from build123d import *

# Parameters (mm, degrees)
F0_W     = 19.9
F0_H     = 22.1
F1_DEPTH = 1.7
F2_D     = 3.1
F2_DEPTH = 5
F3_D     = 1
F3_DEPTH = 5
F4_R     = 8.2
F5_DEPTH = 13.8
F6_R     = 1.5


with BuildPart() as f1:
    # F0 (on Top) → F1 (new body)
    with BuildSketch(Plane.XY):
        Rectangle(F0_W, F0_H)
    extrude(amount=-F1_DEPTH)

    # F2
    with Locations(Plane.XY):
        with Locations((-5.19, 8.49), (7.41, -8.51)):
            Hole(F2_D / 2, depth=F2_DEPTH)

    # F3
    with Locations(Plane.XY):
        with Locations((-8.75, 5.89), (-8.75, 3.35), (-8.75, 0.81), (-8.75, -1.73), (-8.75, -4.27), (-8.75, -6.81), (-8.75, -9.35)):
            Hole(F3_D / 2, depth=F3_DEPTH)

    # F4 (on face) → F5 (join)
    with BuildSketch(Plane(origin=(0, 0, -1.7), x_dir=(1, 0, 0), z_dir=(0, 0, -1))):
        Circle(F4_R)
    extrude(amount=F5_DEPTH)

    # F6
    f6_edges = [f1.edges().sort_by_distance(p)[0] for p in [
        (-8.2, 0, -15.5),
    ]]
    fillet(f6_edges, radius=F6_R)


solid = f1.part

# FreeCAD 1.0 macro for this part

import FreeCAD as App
import Part
import Sketcher
Q = App.Units.Quantity


def edges_at(feature, points):
    """Names of the edges that pass closest to the given points."""
    edges = feature.Shape.Edges
    near = lambda p: min(range(len(edges)), key=lambda i: edges[i].distToShape(Part.Vertex(*p))[0])
    return sorted({f"Edge{near(p) + 1}" for p in points})

doc = App.newDocument("Part")
params = doc.addObject("Spreadsheet::Sheet", "Params")
for row, (alias, value) in enumerate([
    ("sketch1_width", "19.9 mm"),
    ("sketch1_height", "22.1 mm"),
    ("pad1_length", "1.7 mm"),
    ("sketch2_diameter", "3.1 mm"),
    ("hole_diameter", "3.1 mm"),
    ("hole_depth", "5 mm"),
    ("sketch3_diameter", "1 mm"),
    ("hole2_diameter", "1 mm"),
    ("hole2_depth", "5 mm"),
    ("sketch4_diameter", "16.4 mm"),
    ("pad2_length", "13.8 mm"),
    ("fillet_radius", "1.5 mm"),
], start=1):
    params.set(f"A{row}", alias)
    params.set(f"B{row}", "=" + value)
    params.setAlias(f"B{row}", alias)

body = doc.addObject("PartDesign::Body", "Body")

sketch1 = body.newObject("Sketcher::SketchObject", "Sketch")
sketch1.AttachmentSupport = (doc.getObject("XY_Plane"), [""])
sketch1.MapMode = "FlatFace"
sketch1.addGeometry([
    Part.LineSegment(App.Vector(-10, 11, 0), App.Vector(-10, -11, 0)),
    Part.LineSegment(App.Vector(-10, -11, 0), App.Vector(10, -11, 0)),
    Part.LineSegment(App.Vector(10, -11, 0), App.Vector(10, 11, 0)),
    Part.LineSegment(App.Vector(10, 11, 0), App.Vector(-10, 11, 0)),
], False)
sketch1.addConstraint([
    Sketcher.Constraint("Coincident", 0, 2, 1, 1),
    Sketcher.Constraint("Coincident", 1, 2, 2, 1),
    Sketcher.Constraint("Coincident", 2, 2, 3, 1),
    Sketcher.Constraint("Coincident", 3, 2, 0, 1),
    Sketcher.Constraint("Vertical", 0),
    Sketcher.Constraint("Horizontal", 1),
    Sketcher.Constraint("Vertical", 2),
    Sketcher.Constraint("Horizontal", 3),
    Sketcher.Constraint("Symmetric", 0, 2, 2, 2, -1, 1),
    Sketcher.Constraint("DistanceX", 1, 1, 1, 2, Q("19.9 mm")),
    Sketcher.Constraint("DistanceY", 0, 2, 0, 1, Q("22.1 mm")),
])
sketch1.setExpression("Constraints[9]", "Params.sketch1_width")
sketch1.setExpression("Constraints[10]", "Params.sketch1_height")
pad1 = body.newObject("PartDesign::Pad", "Pad")
pad1.Profile = sketch1
pad1.setExpression("Length", "Params.pad1_length")
pad1.Reversed = True

sketch2 = body.newObject("Sketcher::SketchObject", "Sketch001")
sketch2.AttachmentSupport = (doc.getObject("XY_Plane"), [""])
sketch2.MapMode = "FlatFace"
sketch2.addGeometry([
    Part.Circle(App.Vector(-5.2, 8.5, 0), App.Vector(0, 0, 1), 1.6),
    Part.Circle(App.Vector(7.4, -8.5, 0), App.Vector(0, 0, 1), 1.6),
], False)
sketch2.addConstraint([
    Sketcher.Constraint("Equal", 0, 1),
    Sketcher.Constraint("Diameter", 0, Q("3.1 mm")),
    Sketcher.Constraint("DistanceY", 1, 3, 0, 3, Q("17 mm")),
    Sketcher.Constraint("DistanceX", 0, 3, 1, 3, Q("12.6 mm")),
    Sketcher.Constraint("DistanceX", 0, 3, -1, 1, Q("5.19 mm")),
    Sketcher.Constraint("DistanceY", -1, 1, 0, 3, Q("8.49 mm")),
])
sketch2.setExpression("Constraints[1]", "Params.sketch2_diameter")
doc.recompute()
hole = body.newObject("PartDesign::Hole", "Hole")
hole.Profile = sketch2
hole.ThreadType = "None"
hole.setExpression("Diameter", "Params.hole_diameter")
hole.DepthType = "Dimension"
hole.setExpression("Depth", "Params.hole_depth")
hole.DrillPoint = "Flat"

sketch3 = body.newObject("Sketcher::SketchObject", "Sketch002")
sketch3.AttachmentSupport = (doc.getObject("XY_Plane"), [""])
sketch3.MapMode = "FlatFace"
sketch3.addGeometry([
    Part.Circle(App.Vector(-8.8, 5.9, 0), App.Vector(0, 0, 1), 0.5),
    Part.Circle(App.Vector(-8.8, 3.4, 0), App.Vector(0, 0, 1), 0.5),
    Part.Circle(App.Vector(-8.8, 0.8, 0), App.Vector(0, 0, 1), 0.5),
    Part.Circle(App.Vector(-8.8, -1.7, 0), App.Vector(0, 0, 1), 0.5),
    Part.Circle(App.Vector(-8.8, -4.3, 0), App.Vector(0, 0, 1), 0.5),
    Part.Circle(App.Vector(-8.8, -6.8, 0), App.Vector(0, 0, 1), 0.5),
    Part.Circle(App.Vector(-8.8, -9.3, 0), App.Vector(0, 0, 1), 0.5),
], False)
sketch3.addConstraint([
    Sketcher.Constraint("Equal", 0, 1),
    Sketcher.Constraint("Equal", 1, 2),
    Sketcher.Constraint("Equal", 2, 3),
    Sketcher.Constraint("Equal", 3, 4),
    Sketcher.Constraint("Equal", 4, 5),
    Sketcher.Constraint("Equal", 5, 6),
    Sketcher.Constraint("Vertical", 0, 3, 1, 3),
    Sketcher.Constraint("Vertical", 1, 3, 2, 3),
    Sketcher.Constraint("Vertical", 2, 3, 3, 3),
    Sketcher.Constraint("Vertical", 3, 3, 4, 3),
    Sketcher.Constraint("Vertical", 4, 3, 5, 3),
    Sketcher.Constraint("Vertical", 5, 3, 6, 3),
    Sketcher.Constraint("Diameter", 0, Q("1 mm")),
    Sketcher.Constraint("DistanceY", 5, 3, 0, 3, Q("12.7 mm")),
    Sketcher.Constraint("DistanceY", 6, 3, 1, 3, Q("12.7 mm")),
    Sketcher.Constraint("DistanceX", 0, 3, -1, 1, Q("8.75 mm")),
    Sketcher.Constraint("DistanceY", -1, 1, 0, 3, Q("5.89 mm")),
    Sketcher.Constraint("DistanceY", -1, 1, 1, 3, Q("3.35 mm")),
    Sketcher.Constraint("DistanceY", -1, 1, 2, 3, Q("0.81 mm")),
    Sketcher.Constraint("DistanceY", 3, 3, -1, 1, Q("1.73 mm")),
    Sketcher.Constraint("DistanceY", 4, 3, -1, 1, Q("4.27 mm")),
])
sketch3.setExpression("Constraints[12]", "Params.sketch3_diameter")
doc.recompute()
hole2 = body.newObject("PartDesign::Hole", "Hole001")
hole2.Profile = sketch3
hole2.ThreadType = "None"
hole2.setExpression("Diameter", "Params.hole2_diameter")
hole2.DepthType = "Dimension"
hole2.setExpression("Depth", "Params.hole2_depth")
hole2.DrillPoint = "Flat"

sketch4 = body.newObject("Sketcher::SketchObject", "Sketch003")
sketch4.AttachmentSupport = (doc.getObject("XY_Plane"), [""])
sketch4.MapMode = "FlatFace"
sketch4.AttachmentOffset = App.Placement(App.Vector(0, 0, -1.7), App.Rotation())
sketch4.addGeometry(Part.Circle(App.Vector(0, 0, 0), App.Vector(0, 0, 1), 8), False)
sketch4.addConstraint([
    Sketcher.Constraint("Coincident", 0, 3, -1, 1),
    Sketcher.Constraint("Diameter", 0, Q("16.4 mm")),
])
sketch4.setExpression("Constraints[1]", "Params.sketch4_diameter")
pad2 = body.newObject("PartDesign::Pad", "Pad001")
pad2.Profile = sketch4
pad2.setExpression("Length", "Params.pad2_length")
pad2.Reversed = True
doc.recompute()

fillet = body.newObject("PartDesign::Fillet", "Fillet")
fillet.Base = (pad2, edges_at(pad2, [(-8.2, 0, -15.5)]))
fillet.setExpression("Radius", "Params.fillet_radius")

doc.recompute()
